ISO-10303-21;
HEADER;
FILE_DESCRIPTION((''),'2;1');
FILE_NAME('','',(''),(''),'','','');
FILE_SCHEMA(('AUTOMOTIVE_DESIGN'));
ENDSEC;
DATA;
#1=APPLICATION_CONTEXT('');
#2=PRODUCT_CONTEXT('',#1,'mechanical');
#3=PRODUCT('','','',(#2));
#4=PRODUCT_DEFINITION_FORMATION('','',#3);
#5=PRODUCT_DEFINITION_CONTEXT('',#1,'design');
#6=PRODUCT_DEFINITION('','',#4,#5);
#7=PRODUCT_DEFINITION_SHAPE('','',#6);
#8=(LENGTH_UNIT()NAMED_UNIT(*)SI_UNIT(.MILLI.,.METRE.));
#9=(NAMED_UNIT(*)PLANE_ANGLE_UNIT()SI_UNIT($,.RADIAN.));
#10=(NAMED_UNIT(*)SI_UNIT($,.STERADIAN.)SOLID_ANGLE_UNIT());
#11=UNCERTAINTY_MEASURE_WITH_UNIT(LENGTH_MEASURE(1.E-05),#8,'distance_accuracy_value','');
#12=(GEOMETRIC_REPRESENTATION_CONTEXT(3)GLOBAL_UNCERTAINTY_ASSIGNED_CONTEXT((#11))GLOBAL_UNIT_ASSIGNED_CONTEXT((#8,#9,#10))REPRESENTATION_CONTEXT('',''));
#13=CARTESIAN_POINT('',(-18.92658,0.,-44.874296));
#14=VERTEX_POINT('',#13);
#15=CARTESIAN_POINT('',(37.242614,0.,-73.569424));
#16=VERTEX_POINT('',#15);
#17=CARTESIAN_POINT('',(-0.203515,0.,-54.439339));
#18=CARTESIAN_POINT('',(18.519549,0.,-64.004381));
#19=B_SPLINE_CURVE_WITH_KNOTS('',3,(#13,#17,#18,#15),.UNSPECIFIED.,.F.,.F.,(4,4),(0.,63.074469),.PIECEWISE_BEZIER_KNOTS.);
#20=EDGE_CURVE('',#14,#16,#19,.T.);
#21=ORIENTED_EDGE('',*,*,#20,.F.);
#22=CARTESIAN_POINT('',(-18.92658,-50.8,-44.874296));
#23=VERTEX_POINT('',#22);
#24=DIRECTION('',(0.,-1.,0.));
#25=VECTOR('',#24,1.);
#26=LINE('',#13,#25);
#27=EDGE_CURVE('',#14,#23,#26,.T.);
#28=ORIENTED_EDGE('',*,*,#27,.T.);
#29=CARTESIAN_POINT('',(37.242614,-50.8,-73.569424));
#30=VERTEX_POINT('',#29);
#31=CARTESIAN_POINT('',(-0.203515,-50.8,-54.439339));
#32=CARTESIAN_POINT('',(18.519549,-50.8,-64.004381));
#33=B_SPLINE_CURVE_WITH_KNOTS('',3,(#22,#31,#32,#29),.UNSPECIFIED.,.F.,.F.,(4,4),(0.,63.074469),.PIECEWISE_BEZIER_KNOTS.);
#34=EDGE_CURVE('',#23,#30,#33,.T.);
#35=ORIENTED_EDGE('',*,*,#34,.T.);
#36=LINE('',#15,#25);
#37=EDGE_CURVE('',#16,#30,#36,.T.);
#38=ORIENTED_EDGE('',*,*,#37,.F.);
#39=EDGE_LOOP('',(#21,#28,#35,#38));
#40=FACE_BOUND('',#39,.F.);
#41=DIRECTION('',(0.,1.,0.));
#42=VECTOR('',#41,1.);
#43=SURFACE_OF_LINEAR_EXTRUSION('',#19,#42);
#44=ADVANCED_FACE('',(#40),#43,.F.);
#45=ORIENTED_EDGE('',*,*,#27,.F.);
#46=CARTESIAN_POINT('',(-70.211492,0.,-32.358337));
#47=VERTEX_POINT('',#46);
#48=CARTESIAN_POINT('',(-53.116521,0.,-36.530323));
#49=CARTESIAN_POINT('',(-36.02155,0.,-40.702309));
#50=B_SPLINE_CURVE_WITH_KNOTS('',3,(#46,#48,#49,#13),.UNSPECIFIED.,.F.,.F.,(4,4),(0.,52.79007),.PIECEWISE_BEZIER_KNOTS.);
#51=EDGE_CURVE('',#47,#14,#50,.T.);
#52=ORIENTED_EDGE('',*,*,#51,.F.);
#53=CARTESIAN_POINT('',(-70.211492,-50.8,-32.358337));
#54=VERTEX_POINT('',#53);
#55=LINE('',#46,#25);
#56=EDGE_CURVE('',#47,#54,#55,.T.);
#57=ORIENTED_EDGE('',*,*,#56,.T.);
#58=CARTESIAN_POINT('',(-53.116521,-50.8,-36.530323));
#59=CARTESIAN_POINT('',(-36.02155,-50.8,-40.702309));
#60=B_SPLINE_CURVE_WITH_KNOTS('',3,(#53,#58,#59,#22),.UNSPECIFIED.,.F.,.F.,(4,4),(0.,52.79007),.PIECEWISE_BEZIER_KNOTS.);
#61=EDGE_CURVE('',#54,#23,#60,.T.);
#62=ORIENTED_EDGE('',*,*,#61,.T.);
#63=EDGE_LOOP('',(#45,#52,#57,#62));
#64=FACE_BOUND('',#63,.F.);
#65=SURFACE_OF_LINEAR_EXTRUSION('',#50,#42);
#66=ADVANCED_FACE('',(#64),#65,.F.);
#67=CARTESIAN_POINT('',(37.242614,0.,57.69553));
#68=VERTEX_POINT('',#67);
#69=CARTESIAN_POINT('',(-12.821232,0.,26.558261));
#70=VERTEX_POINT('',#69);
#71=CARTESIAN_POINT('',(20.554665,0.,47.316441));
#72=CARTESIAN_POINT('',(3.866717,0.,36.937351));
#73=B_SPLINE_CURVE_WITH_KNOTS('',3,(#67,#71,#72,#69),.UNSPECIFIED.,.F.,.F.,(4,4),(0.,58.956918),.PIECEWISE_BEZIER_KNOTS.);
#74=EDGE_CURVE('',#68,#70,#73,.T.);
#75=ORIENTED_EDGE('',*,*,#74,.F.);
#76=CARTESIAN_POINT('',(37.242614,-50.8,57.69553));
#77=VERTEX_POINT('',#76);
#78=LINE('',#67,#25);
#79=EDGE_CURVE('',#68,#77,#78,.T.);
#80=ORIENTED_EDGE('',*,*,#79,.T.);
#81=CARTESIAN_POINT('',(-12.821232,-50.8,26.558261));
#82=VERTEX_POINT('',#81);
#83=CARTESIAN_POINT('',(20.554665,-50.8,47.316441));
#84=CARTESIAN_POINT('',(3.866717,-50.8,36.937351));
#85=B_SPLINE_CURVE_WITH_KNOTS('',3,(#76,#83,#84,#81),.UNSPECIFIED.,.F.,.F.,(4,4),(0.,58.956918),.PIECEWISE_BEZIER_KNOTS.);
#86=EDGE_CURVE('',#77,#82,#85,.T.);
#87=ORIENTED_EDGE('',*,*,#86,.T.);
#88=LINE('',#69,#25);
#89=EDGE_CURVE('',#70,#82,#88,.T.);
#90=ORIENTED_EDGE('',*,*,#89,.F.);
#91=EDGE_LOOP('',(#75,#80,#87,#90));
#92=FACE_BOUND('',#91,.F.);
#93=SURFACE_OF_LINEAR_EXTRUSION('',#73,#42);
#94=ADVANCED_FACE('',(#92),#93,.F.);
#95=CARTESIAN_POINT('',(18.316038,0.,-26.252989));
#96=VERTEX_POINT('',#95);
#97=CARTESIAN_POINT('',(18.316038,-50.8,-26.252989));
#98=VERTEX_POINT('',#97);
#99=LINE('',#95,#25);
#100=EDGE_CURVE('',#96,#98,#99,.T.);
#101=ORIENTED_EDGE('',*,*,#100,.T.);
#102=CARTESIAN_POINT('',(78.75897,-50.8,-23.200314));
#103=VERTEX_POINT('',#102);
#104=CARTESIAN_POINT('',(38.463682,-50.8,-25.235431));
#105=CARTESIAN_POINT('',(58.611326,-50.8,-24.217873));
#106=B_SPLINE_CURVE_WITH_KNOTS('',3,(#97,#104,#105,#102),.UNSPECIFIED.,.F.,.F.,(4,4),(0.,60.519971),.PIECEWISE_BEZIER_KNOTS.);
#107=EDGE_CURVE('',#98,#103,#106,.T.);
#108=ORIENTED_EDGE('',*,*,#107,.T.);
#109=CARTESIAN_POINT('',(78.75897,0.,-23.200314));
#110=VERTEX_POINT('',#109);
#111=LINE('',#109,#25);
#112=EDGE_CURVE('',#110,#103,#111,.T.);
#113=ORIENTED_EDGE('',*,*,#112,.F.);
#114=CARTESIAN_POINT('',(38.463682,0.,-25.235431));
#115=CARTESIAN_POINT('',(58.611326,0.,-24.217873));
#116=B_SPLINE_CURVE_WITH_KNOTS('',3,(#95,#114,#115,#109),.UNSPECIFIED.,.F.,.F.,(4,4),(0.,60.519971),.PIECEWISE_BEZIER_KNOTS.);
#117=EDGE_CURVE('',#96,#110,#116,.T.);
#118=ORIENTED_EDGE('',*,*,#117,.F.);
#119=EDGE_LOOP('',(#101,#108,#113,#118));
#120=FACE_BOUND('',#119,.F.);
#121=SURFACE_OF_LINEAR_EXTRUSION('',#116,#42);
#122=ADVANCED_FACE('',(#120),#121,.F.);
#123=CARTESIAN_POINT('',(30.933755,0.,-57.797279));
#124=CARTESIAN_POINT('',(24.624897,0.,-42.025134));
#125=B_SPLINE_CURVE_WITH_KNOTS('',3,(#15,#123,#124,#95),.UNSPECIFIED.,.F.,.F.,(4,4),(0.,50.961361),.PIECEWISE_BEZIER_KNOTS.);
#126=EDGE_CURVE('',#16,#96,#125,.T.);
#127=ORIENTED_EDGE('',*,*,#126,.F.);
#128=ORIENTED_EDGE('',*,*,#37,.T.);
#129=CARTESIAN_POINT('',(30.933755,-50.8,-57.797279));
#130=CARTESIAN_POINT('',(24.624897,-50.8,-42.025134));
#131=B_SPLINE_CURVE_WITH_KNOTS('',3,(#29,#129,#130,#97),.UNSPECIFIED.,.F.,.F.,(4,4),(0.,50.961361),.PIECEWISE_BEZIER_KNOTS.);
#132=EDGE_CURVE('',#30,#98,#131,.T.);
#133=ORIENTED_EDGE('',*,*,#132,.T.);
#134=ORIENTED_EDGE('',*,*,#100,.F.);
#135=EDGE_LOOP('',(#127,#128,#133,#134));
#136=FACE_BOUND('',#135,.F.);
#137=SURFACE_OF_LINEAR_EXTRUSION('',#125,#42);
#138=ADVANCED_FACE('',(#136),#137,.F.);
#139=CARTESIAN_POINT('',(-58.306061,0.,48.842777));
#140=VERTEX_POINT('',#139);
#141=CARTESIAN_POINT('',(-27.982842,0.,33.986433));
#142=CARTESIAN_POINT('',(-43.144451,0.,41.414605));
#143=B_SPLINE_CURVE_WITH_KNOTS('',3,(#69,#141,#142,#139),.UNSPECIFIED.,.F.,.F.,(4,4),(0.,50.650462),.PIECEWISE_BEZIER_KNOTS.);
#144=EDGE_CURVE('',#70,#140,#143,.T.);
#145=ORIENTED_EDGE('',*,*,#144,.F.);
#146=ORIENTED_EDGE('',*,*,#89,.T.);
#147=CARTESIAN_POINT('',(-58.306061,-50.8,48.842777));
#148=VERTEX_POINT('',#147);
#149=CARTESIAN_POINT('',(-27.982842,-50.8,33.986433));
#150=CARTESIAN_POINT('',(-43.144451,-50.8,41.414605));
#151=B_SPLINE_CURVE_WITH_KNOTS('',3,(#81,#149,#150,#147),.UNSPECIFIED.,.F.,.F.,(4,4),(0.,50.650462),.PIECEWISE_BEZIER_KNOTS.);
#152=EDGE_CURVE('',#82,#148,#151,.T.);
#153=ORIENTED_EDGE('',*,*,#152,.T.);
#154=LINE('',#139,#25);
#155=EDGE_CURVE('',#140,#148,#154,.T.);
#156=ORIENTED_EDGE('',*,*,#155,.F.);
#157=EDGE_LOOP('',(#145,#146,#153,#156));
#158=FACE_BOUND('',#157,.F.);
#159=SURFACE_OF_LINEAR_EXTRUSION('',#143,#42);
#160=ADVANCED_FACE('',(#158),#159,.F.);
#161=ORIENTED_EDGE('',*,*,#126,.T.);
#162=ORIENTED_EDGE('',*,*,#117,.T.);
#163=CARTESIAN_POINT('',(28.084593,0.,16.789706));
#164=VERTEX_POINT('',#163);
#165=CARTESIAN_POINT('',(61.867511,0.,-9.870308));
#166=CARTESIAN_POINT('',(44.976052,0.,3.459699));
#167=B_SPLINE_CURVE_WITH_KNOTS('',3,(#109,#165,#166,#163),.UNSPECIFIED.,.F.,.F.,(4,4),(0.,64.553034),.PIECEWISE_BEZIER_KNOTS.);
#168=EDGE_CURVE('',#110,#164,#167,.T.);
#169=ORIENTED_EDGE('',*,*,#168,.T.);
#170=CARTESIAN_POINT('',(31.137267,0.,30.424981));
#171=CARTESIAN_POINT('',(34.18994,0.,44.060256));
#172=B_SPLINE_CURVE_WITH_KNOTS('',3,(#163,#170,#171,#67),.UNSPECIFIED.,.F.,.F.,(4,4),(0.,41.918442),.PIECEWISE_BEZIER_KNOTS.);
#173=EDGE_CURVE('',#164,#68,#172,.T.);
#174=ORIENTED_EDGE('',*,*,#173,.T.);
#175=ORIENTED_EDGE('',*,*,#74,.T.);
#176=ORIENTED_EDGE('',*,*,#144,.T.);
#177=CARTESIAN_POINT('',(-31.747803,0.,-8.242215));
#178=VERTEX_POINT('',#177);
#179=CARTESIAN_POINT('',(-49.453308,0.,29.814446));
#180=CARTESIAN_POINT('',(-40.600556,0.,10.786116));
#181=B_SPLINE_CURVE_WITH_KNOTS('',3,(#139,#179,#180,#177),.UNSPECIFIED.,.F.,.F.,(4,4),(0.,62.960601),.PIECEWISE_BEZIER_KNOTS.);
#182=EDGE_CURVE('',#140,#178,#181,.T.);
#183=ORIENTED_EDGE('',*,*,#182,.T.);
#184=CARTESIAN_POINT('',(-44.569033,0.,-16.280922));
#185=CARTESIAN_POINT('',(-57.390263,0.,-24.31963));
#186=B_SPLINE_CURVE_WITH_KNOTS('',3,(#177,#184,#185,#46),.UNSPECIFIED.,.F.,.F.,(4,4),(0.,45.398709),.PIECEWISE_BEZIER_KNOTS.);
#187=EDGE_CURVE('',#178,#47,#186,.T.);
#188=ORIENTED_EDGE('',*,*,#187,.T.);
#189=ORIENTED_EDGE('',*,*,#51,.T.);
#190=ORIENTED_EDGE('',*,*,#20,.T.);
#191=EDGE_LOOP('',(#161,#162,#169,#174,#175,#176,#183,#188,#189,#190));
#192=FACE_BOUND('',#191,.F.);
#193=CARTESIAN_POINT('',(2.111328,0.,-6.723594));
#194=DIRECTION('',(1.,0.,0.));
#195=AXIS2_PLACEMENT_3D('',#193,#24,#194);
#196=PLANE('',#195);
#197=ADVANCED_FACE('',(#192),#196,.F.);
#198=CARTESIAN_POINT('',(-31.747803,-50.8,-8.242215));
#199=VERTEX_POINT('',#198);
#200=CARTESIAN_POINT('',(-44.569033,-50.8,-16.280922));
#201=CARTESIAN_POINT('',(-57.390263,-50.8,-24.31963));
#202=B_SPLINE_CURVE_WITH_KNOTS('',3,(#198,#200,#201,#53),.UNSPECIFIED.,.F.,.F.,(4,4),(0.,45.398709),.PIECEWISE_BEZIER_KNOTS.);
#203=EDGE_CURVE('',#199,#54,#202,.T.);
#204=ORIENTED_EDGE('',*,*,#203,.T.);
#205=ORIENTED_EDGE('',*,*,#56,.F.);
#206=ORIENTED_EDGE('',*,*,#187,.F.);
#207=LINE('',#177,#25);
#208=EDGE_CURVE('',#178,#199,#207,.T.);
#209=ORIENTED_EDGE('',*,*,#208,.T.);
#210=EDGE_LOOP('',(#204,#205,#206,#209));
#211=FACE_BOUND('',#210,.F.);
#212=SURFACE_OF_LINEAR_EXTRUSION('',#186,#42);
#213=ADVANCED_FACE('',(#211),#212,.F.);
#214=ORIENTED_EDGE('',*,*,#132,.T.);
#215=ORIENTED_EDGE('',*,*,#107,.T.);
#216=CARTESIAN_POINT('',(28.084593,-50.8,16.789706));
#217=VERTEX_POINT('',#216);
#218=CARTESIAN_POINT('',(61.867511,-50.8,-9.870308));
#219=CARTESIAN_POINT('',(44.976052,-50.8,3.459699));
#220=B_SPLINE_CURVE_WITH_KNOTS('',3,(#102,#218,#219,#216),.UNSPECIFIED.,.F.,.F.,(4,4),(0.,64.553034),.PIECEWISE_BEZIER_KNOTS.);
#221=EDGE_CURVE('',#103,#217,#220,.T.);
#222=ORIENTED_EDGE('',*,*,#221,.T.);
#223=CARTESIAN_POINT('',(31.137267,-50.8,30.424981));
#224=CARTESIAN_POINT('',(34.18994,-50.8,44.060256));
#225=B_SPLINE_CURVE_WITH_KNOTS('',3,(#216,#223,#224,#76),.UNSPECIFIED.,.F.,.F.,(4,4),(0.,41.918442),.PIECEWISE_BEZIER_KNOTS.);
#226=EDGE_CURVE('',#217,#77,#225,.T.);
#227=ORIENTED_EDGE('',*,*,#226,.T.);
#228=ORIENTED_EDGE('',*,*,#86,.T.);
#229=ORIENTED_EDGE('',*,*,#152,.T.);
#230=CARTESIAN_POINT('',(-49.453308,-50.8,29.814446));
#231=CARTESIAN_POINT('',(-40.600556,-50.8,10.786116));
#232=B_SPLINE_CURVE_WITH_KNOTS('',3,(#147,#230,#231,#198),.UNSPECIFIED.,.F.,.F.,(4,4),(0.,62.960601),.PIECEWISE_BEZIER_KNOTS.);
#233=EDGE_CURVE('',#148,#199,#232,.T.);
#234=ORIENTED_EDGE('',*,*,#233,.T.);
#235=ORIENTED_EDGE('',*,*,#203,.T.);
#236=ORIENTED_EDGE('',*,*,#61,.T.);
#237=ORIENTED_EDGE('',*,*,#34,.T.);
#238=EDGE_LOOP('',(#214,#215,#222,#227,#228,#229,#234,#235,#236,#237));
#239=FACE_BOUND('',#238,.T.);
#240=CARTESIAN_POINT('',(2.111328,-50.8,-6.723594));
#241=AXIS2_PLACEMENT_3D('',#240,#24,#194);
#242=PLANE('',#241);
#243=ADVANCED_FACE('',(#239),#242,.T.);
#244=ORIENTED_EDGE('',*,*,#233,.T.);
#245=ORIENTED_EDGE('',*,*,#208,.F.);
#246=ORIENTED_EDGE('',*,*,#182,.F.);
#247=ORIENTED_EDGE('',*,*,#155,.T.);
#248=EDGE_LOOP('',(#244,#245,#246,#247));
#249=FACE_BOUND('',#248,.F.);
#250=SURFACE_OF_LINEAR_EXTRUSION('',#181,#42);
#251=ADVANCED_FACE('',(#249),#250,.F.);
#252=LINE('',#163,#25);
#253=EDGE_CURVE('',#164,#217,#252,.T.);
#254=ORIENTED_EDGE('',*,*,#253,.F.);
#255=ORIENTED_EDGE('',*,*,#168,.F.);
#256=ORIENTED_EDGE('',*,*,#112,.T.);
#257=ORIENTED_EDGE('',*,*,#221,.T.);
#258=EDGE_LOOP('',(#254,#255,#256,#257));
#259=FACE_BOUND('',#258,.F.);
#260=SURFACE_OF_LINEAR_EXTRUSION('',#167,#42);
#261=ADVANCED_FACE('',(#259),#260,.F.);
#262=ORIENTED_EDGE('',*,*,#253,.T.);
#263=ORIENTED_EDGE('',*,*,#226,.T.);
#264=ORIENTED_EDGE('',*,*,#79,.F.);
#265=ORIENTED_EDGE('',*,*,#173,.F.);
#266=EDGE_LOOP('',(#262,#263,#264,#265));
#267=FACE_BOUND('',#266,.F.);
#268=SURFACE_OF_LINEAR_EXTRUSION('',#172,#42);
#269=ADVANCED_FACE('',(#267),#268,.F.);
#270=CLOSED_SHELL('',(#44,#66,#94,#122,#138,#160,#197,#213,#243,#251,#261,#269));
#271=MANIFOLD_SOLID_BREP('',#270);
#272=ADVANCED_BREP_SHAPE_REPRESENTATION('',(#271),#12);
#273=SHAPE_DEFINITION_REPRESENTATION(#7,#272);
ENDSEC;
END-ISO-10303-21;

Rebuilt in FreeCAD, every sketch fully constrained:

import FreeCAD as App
import Part
import Sketcher
from FreeCAD import Vector
Q = App.Units.Quantity

doc = App.newDocument("Part")
body = doc.addObject("PartDesign::Body", "Body")

# Sketch on XZ plane
sketch1 = body.newObject("Sketcher::SketchObject", "Sketch")
sketch1.AttachmentSupport = (doc.getObject("XZ_Plane"), [""])
sketch1.MapMode = "FlatFace"
sketch1.addGeometry(Part.BSplineCurve([Vector(78.75897, -23.200314, 0), Vector(61.867511, -9.870308, 0), Vector(44.976052, 3.459699, 0), Vector(28.084593, 16.789706, 0)], [4, 4], [0, 64.553034], False, 3, [1, 1, 1, 1], False), False)
sketch1.addGeometry(Part.BSplineCurve([Vector(28.084593, 16.789706, 0), Vector(31.137267, 30.424981, 0), Vector(34.18994, 44.060256, 0), Vector(37.242614, 57.69553, 0)], [4, 4], [0, 41.918442], False, 3, [1, 1, 1, 1], False), False)
sketch1.addGeometry(Part.BSplineCurve([Vector(37.242614, 57.69553, 0), Vector(20.554665, 47.316441, 0), Vector(3.866717, 36.937351, 0), Vector(-12.821232, 26.558261, 0)], [4, 4], [0, 58.956918], False, 3, [1, 1, 1, 1], False), False)
sketch1.addGeometry(Part.BSplineCurve([Vector(-12.821232, 26.558261, 0), Vector(-27.982842, 33.986433, 0), Vector(-43.144451, 41.414605, 0), Vector(-58.306061, 48.842777, 0)], [4, 4], [0, 50.650462], False, 3, [1, 1, 1, 1], False), False)
sketch1.addGeometry(Part.BSplineCurve([Vector(-58.306061, 48.842777, 0), Vector(-49.453308, 29.814446, 0), Vector(-40.600556, 10.786116, 0), Vector(-31.747803, -8.242215, 0)], [4, 4], [0, 62.960601], False, 3, [1, 1, 1, 1], False), False)
sketch1.addGeometry(Part.BSplineCurve([Vector(-31.747803, -8.242215, 0), Vector(-44.569033, -16.280922, 0), Vector(-57.390263, -24.31963, 0), Vector(-70.211492, -32.358337, 0)], [4, 4], [0, 45.398709], False, 3, [1, 1, 1, 1], False), False)
sketch1.addGeometry(Part.BSplineCurve([Vector(-70.211492, -32.358337, 0), Vector(-53.116521, -36.530323, 0), Vector(-36.02155, -40.702309, 0), Vector(-18.92658, -44.874296, 0)], [4, 4], [0, 52.79007], False, 3, [1, 1, 1, 1], False), False)
sketch1.addGeometry(Part.BSplineCurve([Vector(-18.92658, -44.874296, 0), Vector(-0.203515, -54.439339, 0), Vector(18.519549, -64.004381, 0), Vector(37.242614, -73.569424, 0)], [4, 4], [0, 63.074469], False, 3, [1, 1, 1, 1], False), False)
sketch1.addGeometry(Part.BSplineCurve([Vector(37.242614, -73.569424, 0), Vector(30.933755, -57.797279, 0), Vector(24.624897, -42.025134, 0), Vector(18.316038, -26.252989, 0)], [4, 4], [0, 50.961361], False, 3, [1, 1, 1, 1], False), False)
sketch1.addGeometry(Part.BSplineCurve([Vector(18.316038, -26.252989, 0), Vector(38.463682, -25.235431, 0), Vector(58.611326, -24.217873, 0), Vector(78.75897, -23.200314, 0)], [4, 4], [0, 60.519971], False, 3, [1, 1, 1, 1], False), False)
sketch1.addConstraint(Sketcher.Constraint("Block", 0))
sketch1.addConstraint(Sketcher.Constraint("Block", 1))
sketch1.addConstraint(Sketcher.Constraint("Block", 2))
sketch1.addConstraint(Sketcher.Constraint("Block", 3))
sketch1.addConstraint(Sketcher.Constraint("Block", 4))
sketch1.addConstraint(Sketcher.Constraint("Block", 5))
sketch1.addConstraint(Sketcher.Constraint("Block", 6))
sketch1.addConstraint(Sketcher.Constraint("Block", 7))
sketch1.addConstraint(Sketcher.Constraint("Block", 8))
sketch1.addConstraint(Sketcher.Constraint("Block", 9))
pad1 = body.newObject("PartDesign::Pad", "Pad")
pad1.Profile = sketch1
pad1.Length = Q("2 in")

doc.recompute()
